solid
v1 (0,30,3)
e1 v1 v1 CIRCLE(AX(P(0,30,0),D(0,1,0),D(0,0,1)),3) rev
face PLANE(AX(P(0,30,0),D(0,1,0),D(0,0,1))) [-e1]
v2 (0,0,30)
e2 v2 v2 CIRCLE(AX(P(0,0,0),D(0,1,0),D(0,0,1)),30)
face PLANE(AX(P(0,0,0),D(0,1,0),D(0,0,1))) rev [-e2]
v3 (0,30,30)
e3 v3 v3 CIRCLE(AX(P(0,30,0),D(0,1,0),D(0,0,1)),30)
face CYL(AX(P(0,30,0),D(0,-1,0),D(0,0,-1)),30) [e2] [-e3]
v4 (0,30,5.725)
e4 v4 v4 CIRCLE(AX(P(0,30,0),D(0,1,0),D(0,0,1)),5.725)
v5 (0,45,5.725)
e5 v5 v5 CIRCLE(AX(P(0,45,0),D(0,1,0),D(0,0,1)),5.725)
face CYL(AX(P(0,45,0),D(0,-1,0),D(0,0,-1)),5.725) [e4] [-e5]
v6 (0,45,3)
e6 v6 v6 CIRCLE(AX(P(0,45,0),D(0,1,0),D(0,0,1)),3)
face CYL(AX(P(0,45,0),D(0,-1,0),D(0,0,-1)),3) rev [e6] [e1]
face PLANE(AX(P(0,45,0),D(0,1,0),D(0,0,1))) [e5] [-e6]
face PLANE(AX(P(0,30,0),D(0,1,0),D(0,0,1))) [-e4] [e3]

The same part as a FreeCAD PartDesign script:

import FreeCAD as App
import Part
import Sketcher

V = App.Vector
Q = App.Units.Quantity

doc = App.newDocument("Part")
body = doc.addObject("PartDesign::Body", "Body")

# Sketch on XZ plane
sketch1 = body.newObject("Sketcher::SketchObject", "Sketch")
sketch1.AttachmentSupport = (doc.getObject("XZ_Plane"), [""])
sketch1.MapMode = "FlatFace"
sketch1.addGeometry(Part.Circle(V(0, 0, 0), V(0, 0, 1), 30), False)
sketch1.addConstraint([
    Sketcher.Constraint("Coincident", 0, 3, -1, 1),
    Sketcher.Constraint("Diameter", 0, Q("60 mm")),
])
pad1 = body.newObject("PartDesign::Pad", "Pad")
pad1.Profile = sketch1
pad1.Length = 30
pad1.Reversed = True

# Sketch on XZ plane
sketch2 = body.newObject("Sketcher::SketchObject", "Sketch001")
sketch2.AttachmentSupport = (doc.getObject("XZ_Plane"), [""])
sketch2.MapMode = "FlatFace"
sketch2.AttachmentOffset = App.Placement(V(0, 0, -30), App.Rotation())
sketch2.addGeometry([
    Part.Circle(V(0, 0, 0), V(0, 0, 1), 5.7),
    Part.Circle(V(0, 0, 0), V(0, 0, 1), 3),
], False)
sketch2.addConstraint([
    Sketcher.Constraint("Coincident", 0, 3, -1, 1),
    Sketcher.Constraint("Coincident", 1, 3, -1, 1),
    Sketcher.Constraint("Diameter", 1, Q("6 mm")),
    Sketcher.Constraint("Diameter", 0, Q("11.45 mm")),
])
pad2 = body.newObject("PartDesign::Pad", "Pad001")
pad2.Profile = sketch2
pad2.Length = 15
pad2.Reversed = True

doc.recompute()
